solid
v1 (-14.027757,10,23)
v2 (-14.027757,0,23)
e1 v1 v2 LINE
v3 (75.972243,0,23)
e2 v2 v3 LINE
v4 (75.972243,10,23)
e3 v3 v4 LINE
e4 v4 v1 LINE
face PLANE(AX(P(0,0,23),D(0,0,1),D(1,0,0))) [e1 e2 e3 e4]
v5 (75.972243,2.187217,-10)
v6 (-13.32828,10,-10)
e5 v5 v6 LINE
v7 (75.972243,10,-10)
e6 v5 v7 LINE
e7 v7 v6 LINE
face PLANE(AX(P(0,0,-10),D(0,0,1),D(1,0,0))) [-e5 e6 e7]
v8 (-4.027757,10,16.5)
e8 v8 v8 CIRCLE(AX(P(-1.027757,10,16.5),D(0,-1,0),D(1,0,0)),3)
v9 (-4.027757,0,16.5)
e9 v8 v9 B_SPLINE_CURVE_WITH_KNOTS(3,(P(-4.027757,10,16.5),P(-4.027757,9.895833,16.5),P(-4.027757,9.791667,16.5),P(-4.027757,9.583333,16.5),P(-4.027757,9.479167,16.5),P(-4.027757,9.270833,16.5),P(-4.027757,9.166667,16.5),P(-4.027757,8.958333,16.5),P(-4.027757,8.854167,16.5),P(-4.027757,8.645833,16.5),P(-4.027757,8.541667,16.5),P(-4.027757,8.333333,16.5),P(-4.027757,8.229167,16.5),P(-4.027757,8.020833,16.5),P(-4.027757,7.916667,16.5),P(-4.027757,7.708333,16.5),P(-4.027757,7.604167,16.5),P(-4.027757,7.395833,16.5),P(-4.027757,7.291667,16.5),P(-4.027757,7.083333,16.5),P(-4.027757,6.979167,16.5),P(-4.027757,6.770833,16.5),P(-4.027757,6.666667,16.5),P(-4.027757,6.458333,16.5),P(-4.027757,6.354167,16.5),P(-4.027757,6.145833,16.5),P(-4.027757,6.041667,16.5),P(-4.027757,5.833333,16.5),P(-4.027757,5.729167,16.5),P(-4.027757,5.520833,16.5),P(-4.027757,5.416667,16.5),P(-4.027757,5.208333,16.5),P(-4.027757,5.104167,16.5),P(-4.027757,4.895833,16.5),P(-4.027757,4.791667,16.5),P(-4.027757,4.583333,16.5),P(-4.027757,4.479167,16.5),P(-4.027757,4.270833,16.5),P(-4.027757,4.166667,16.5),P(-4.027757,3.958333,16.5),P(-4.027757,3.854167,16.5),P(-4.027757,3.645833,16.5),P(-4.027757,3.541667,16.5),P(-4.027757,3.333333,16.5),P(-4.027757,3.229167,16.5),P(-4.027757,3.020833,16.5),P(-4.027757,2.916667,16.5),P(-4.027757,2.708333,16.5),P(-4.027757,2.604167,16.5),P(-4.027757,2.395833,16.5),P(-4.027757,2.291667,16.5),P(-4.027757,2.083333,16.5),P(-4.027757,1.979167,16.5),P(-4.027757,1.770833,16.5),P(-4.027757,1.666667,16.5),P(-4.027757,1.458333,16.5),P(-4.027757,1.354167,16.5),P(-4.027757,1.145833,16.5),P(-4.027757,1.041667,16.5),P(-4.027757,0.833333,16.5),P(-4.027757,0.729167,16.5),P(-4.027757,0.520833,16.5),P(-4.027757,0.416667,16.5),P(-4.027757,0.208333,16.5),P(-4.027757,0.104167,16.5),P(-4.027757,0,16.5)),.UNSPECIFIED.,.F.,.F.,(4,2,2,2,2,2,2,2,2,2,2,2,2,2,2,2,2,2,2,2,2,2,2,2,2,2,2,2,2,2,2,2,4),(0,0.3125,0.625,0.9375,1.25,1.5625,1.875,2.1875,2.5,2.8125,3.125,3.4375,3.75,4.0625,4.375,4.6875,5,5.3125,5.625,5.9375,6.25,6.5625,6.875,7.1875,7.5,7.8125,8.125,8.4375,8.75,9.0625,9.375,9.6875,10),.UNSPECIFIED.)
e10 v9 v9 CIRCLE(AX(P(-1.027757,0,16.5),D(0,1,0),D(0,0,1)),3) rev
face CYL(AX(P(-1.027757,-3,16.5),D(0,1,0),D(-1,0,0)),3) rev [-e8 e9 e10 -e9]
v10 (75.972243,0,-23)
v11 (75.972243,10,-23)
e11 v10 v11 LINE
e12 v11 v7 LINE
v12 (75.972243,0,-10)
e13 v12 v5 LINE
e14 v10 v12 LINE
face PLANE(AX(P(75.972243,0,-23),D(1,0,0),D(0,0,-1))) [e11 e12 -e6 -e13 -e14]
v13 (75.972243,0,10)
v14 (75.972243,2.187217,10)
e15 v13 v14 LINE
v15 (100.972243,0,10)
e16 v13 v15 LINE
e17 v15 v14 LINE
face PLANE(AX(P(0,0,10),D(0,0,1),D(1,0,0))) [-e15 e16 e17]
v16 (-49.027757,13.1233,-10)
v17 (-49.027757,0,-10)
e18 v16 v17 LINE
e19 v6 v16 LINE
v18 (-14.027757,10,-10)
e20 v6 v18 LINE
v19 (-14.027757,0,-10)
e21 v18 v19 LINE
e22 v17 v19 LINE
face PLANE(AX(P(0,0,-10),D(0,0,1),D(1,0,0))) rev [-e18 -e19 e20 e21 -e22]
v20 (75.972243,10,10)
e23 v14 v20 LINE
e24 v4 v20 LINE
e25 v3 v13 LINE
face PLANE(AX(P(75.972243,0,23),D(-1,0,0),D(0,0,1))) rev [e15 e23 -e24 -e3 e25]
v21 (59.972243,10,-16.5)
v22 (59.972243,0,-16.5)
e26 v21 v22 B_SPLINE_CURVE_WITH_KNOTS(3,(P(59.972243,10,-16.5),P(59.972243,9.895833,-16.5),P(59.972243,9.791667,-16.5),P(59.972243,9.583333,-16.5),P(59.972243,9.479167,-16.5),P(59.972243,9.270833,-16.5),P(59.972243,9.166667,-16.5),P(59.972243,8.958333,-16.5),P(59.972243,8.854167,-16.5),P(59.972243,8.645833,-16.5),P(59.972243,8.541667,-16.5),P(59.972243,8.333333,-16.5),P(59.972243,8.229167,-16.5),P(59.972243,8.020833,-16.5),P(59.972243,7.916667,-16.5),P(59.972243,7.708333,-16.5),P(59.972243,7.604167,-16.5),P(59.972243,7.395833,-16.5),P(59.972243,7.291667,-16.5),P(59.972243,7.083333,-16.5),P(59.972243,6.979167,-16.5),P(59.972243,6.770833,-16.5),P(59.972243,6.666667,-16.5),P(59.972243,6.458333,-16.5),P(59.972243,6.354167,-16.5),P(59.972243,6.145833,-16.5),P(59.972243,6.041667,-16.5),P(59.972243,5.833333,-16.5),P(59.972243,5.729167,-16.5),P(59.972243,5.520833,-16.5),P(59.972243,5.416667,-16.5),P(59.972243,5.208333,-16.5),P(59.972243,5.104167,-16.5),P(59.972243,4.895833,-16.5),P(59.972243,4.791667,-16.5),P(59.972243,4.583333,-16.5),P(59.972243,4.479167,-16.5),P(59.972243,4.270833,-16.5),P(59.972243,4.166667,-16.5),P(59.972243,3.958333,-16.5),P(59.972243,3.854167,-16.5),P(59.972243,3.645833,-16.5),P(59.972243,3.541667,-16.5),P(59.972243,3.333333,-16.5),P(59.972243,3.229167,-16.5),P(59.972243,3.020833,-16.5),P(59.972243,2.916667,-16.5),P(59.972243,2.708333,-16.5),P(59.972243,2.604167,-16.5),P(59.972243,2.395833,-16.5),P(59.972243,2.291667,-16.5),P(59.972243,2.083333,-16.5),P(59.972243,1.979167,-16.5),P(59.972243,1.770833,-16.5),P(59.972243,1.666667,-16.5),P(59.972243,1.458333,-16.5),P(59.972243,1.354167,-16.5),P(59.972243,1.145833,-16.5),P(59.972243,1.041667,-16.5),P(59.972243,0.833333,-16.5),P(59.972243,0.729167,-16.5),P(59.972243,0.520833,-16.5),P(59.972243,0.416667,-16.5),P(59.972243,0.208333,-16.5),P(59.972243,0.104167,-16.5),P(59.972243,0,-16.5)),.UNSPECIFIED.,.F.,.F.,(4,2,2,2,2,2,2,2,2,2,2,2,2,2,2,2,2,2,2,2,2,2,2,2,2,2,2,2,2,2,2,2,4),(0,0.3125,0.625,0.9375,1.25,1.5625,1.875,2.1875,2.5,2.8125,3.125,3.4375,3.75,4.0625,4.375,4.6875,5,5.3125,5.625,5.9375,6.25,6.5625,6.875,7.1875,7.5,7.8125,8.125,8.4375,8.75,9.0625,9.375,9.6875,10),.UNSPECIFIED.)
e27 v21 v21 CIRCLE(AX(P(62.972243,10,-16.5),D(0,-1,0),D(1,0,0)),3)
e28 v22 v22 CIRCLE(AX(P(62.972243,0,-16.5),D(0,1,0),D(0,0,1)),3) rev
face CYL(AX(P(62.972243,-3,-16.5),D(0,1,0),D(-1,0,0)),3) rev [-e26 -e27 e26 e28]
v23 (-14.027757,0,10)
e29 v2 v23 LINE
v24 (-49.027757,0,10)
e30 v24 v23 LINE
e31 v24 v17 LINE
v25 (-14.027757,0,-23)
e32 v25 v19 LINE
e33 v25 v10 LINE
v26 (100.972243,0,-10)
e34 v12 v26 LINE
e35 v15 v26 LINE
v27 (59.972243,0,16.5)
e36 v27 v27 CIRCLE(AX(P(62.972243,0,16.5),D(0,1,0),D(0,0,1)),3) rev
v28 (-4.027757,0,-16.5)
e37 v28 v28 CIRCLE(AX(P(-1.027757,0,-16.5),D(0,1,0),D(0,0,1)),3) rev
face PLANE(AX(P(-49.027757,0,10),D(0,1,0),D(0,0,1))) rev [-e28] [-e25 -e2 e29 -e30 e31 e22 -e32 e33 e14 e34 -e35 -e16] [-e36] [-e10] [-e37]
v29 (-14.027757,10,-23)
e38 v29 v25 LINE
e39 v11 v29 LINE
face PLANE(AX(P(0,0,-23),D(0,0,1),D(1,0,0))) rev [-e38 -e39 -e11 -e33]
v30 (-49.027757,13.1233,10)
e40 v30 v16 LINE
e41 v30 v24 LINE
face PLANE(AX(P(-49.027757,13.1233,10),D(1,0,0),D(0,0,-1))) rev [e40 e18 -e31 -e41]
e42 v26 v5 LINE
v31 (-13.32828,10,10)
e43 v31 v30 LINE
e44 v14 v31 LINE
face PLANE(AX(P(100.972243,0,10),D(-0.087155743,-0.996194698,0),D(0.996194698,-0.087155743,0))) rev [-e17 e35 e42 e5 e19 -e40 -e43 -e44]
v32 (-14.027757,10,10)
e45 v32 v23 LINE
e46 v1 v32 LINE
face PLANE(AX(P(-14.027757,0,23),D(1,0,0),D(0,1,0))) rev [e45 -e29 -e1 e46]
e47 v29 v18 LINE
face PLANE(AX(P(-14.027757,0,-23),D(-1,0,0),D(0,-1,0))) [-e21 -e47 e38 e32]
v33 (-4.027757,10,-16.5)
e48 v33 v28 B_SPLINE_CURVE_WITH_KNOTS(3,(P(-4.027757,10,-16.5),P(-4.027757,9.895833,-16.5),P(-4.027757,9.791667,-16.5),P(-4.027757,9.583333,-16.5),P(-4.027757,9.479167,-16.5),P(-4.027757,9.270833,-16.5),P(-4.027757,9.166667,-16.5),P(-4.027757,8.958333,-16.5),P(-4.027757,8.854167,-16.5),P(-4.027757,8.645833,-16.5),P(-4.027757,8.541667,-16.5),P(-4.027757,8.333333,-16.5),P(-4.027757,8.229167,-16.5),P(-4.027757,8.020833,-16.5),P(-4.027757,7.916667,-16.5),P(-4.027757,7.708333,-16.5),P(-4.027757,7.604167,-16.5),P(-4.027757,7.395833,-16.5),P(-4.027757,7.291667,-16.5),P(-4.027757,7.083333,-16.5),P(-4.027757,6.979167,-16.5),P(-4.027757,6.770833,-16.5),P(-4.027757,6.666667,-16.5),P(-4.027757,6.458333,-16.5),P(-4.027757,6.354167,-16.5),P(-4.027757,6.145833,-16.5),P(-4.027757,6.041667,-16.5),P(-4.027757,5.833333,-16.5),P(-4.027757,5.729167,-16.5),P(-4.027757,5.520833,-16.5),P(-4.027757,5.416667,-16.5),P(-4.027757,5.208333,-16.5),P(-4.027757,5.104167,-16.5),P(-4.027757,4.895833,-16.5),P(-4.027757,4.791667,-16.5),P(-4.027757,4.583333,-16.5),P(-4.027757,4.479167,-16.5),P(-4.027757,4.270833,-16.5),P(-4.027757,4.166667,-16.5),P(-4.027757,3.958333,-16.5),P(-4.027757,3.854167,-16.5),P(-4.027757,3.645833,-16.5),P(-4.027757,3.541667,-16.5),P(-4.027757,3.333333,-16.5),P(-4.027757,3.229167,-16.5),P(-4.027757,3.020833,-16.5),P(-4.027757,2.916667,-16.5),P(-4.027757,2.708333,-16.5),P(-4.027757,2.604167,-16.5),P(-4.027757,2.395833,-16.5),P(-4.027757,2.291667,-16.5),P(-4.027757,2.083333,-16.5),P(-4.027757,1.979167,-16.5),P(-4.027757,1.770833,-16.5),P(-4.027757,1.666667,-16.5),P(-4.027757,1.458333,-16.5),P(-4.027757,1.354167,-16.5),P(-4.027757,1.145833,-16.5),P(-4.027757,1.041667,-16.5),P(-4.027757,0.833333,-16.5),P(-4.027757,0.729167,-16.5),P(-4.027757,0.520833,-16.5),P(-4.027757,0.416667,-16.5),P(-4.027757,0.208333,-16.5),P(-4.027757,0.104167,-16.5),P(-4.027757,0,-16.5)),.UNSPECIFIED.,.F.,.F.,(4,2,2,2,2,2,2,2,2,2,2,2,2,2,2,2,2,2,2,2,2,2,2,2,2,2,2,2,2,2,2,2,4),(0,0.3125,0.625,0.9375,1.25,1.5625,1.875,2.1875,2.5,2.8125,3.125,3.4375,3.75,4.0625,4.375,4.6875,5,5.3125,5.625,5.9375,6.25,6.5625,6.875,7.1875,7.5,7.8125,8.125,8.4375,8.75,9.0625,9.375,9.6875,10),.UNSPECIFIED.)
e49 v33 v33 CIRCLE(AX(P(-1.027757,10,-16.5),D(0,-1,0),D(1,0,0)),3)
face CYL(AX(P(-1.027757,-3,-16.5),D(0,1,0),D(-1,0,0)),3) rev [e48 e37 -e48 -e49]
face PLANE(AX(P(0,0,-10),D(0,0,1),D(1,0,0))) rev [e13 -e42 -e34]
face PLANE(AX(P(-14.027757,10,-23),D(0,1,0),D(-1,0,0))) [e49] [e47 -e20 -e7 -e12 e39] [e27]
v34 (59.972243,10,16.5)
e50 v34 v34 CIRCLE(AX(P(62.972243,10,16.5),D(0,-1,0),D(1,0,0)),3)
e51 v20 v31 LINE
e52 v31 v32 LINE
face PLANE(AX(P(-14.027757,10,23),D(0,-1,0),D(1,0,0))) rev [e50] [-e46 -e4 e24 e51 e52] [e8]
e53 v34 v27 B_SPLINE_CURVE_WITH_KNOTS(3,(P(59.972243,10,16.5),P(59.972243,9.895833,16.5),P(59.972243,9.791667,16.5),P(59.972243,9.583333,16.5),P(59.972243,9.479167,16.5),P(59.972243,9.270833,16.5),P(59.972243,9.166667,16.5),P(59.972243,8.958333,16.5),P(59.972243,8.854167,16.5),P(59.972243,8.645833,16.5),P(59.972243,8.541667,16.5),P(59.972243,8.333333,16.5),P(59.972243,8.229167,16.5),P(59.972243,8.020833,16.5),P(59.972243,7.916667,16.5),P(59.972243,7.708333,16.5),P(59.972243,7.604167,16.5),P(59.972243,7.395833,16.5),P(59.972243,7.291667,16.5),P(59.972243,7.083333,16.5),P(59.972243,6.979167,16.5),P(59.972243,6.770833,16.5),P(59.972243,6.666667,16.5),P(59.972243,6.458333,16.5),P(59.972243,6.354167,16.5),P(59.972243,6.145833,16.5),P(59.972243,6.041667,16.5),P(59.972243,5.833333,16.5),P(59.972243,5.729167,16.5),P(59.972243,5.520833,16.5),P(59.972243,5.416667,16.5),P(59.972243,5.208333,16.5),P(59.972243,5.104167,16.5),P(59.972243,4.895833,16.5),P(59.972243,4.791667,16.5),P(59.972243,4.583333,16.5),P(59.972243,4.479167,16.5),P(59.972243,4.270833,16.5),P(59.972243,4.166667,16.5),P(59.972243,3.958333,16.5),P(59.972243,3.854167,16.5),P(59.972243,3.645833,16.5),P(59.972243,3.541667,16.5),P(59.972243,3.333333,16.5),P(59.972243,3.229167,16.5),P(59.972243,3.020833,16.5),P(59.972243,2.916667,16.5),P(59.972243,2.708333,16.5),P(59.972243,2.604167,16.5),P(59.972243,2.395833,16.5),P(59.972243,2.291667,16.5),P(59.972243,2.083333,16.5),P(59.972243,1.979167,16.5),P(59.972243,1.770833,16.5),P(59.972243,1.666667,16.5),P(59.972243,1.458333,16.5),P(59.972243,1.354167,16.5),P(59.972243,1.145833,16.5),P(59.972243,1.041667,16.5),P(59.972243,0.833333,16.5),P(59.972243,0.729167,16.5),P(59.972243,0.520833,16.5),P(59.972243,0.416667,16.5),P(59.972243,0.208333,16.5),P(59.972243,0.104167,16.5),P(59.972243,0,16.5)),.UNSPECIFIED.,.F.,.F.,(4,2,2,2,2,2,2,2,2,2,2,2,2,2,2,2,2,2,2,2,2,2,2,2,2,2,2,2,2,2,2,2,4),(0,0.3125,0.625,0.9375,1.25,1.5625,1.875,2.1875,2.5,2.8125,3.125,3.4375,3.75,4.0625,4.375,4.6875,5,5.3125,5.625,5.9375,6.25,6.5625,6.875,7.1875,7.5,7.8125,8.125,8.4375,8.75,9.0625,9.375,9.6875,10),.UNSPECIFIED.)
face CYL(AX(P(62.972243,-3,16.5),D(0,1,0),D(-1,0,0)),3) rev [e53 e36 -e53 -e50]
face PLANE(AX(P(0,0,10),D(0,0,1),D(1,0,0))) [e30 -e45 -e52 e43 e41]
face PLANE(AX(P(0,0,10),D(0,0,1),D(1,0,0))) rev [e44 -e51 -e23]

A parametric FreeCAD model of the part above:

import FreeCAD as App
import Part
import Sketcher
Q = App.Units.Quantity

doc = App.newDocument("Part")
params = doc.addObject("Spreadsheet::Sheet", "Params")
for row, (alias, value) in enumerate([
    ("sketch1_width", "150 mm"),
    ("pad1_length", "20 mm"),
    ("sketch2_width", "90 mm"),
    ("sketch2_height", "10 mm"),
    ("pad2_length", "13 mm"),
    ("sketch3_width", "90 mm"),
    ("sketch3_height", "10 mm"),
    ("pad3_length", "13 mm"),
    ("sketch4_diameter", "6 mm"),
    ("pocket1_length", "13 mm"),
], start=1):
    params.set(f"A{row}", alias)
    params.set(f"B{row}", "=" + value)
    params.setAlias(f"B{row}", alias)

body = doc.addObject("PartDesign::Body", "Body")

sketch1 = body.newObject("Sketcher::SketchObject", "Sketch")
sketch1.AttachmentSupport = (doc.getObject("XY_Plane"), [""])
sketch1.MapMode = "FlatFace"
sketch1.addGeometry([
    Part.LineSegment(App.Vector(-49, 0, 0), App.Vector(101, 0, 0)),
    Part.LineSegment(App.Vector(101, 0, 0), App.Vector(-49, 13, 0)),
    Part.LineSegment(App.Vector(-49, 13, 0), App.Vector(-49, 0, 0)),
], False)
sketch1.addConstraint([
    Sketcher.Constraint("Coincident", 0, 2, 1, 1),
    Sketcher.Constraint("Coincident", 1, 2, 2, 1),
    Sketcher.Constraint("Coincident", 2, 2, 0, 1),
    Sketcher.Constraint("Horizontal", 0),
    Sketcher.Constraint("Vertical", 2),
    Sketcher.Constraint("PointOnObject", 0, 2, -1),
    Sketcher.Constraint("DistanceX", 0, 1, 0, 2, 150.0),
    Sketcher.Constraint("Angle", 1, Q("175 deg")),
    Sketcher.Constraint("DistanceX", -1, 1, 0, 2, 100.972243),
])
sketch1.setExpression("Constraints[6]", "Params.sketch1_width")
pad1 = body.newObject("PartDesign::Pad", "Pad")
pad1.Profile = sketch1
pad1.setExpression("Length", "Params.pad1_length")
pad1.Midplane = True

sketch2 = body.newObject("Sketcher::SketchObject", "Sketch001")
sketch2.AttachmentSupport = (doc.getObject("XY_Plane"), [""])
sketch2.MapMode = "FlatFace"
sketch2.AttachmentOffset = App.Placement(App.Vector(0, 0, 10), App.Rotation())
sketch2.addGeometry([
    Part.LineSegment(App.Vector(-14, 10, 0), App.Vector(-14, 0, 0)),
    Part.LineSegment(App.Vector(-14, 0, 0), App.Vector(76, 0, 0)),
    Part.LineSegment(App.Vector(76, 0, 0), App.Vector(76, 10, 0)),
    Part.LineSegment(App.Vector(76, 10, 0), App.Vector(-14, 10, 0)),
], False)
sketch2.addConstraint([
    Sketcher.Constraint("Coincident", 0, 2, 1, 1),
    Sketcher.Constraint("Coincident", 1, 2, 2, 1),
    Sketcher.Constraint("Coincident", 2, 2, 3, 1),
    Sketcher.Constraint("Coincident", 3, 2, 0, 1),
    Sketcher.Constraint("Vertical", 0),
    Sketcher.Constraint("Horizontal", 1),
    Sketcher.Constraint("Vertical", 2),
    Sketcher.Constraint("Horizontal", 3),
    Sketcher.Constraint("PointOnObject", 0, 2, -1),
    Sketcher.Constraint("DistanceX", 1, 1, 1, 2, 90.0),
    Sketcher.Constraint("DistanceY", 0, 2, 0, 1, 10.0),
    Sketcher.Constraint("DistanceX", 0, 2, -1, 1, 14.027757),
])
sketch2.setExpression("Constraints[9]", "Params.sketch2_width")
sketch2.setExpression("Constraints[10]", "Params.sketch2_height")
pad2 = body.newObject("PartDesign::Pad", "Pad001")
pad2.Profile = sketch2
pad2.setExpression("Length", "Params.pad2_length")

sketch3 = body.newObject("Sketcher::SketchObject", "Sketch002")
sketch3.AttachmentSupport = (doc.getObject("XY_Plane"), [""])
sketch3.MapMode = "FlatFace"
sketch3.AttachmentOffset = App.Placement(App.Vector(0, 0, -10), App.Rotation())
sketch3.addGeometry([
    Part.LineSegment(App.Vector(-14, 10, 0), App.Vector(-14, 0, 0)),
    Part.LineSegment(App.Vector(-14, 0, 0), App.Vector(76, 0, 0)),
    Part.LineSegment(App.Vector(76, 0, 0), App.Vector(76, 10, 0)),
    Part.LineSegment(App.Vector(76, 10, 0), App.Vector(-14, 10, 0)),
], False)
sketch3.addConstraint([
    Sketcher.Constraint("Coincident", 0, 2, 1, 1),
    Sketcher.Constraint("Coincident", 1, 2, 2, 1),
    Sketcher.Constraint("Coincident", 2, 2, 3, 1),
    Sketcher.Constraint("Coincident", 3, 2, 0, 1),
    Sketcher.Constraint("Vertical", 0),
    Sketcher.Constraint("Horizontal", 1),
    Sketcher.Constraint("Vertical", 2),
    Sketcher.Constraint("Horizontal", 3),
    Sketcher.Constraint("PointOnObject", 0, 2, -1),
    Sketcher.Constraint("DistanceX", 1, 1, 1, 2, 90.0),
    Sketcher.Constraint("DistanceY", 0, 2, 0, 1, 10.0),
    Sketcher.Constraint("DistanceX", 0, 2, -1, 1, 14.027757),
])
sketch3.setExpression("Constraints[9]", "Params.sketch3_width")
sketch3.setExpression("Constraints[10]", "Params.sketch3_height")
pad3 = body.newObject("PartDesign::Pad", "Pad002")
pad3.Profile = sketch3
pad3.setExpression("Length", "Params.pad3_length")
pad3.Reversed = True

sketch4 = body.newObject("Sketcher::SketchObject", "Sketch003")
sketch4.AttachmentSupport = (doc.getObject("XZ_Plane"), [""])
sketch4.MapMode = "FlatFace"
sketch4.AttachmentOffset = App.Placement(App.Vector(0, 0, -10), App.Rotation())
sketch4.addGeometry([
    Part.Circle(App.Vector(-1, 16.5, 0), App.Vector(0, 0, 1), 3),
    Part.Circle(App.Vector(63, 16.5, 0), App.Vector(0, 0, 1), 3),
    Part.Circle(App.Vector(63, -16.5, 0), App.Vector(0, 0, 1), 3),
    Part.Circle(App.Vector(-1, -16.5, 0), App.Vector(0, 0, 1), 3),
], False)
sketch4.addConstraint([
    Sketcher.Constraint("Equal", 0, 1),
    Sketcher.Constraint("Equal", 1, 2),
    Sketcher.Constraint("Equal", 2, 3),
    Sketcher.Constraint("Symmetric", 1, 3, 2, 3, -1),
    Sketcher.Constraint("Symmetric", 0, 3, 3, 3, -1),
    Sketcher.Constraint("Horizontal", 0, 3, 1, 3),
    Sketcher.Constraint("Diameter", 0, 6.0),
    Sketcher.Constraint("DistanceX", 0, 3, 1, 3, 64.0),
    Sketcher.Constraint("DistanceY", 2, 3, 1, 3, 33.0),
    Sketcher.Constraint("DistanceX", 0, 3, -1, 1, 1.027757),
])
sketch4.setExpression("Constraints[6]", "Params.sketch4_diameter")
pocket1 = body.newObject("PartDesign::Pocket", "Pocket")
pocket1.Profile = sketch4
pocket1.setExpression("Length", "Params.pocket1_length")
pocket1.Reversed = True

doc.recompute()
